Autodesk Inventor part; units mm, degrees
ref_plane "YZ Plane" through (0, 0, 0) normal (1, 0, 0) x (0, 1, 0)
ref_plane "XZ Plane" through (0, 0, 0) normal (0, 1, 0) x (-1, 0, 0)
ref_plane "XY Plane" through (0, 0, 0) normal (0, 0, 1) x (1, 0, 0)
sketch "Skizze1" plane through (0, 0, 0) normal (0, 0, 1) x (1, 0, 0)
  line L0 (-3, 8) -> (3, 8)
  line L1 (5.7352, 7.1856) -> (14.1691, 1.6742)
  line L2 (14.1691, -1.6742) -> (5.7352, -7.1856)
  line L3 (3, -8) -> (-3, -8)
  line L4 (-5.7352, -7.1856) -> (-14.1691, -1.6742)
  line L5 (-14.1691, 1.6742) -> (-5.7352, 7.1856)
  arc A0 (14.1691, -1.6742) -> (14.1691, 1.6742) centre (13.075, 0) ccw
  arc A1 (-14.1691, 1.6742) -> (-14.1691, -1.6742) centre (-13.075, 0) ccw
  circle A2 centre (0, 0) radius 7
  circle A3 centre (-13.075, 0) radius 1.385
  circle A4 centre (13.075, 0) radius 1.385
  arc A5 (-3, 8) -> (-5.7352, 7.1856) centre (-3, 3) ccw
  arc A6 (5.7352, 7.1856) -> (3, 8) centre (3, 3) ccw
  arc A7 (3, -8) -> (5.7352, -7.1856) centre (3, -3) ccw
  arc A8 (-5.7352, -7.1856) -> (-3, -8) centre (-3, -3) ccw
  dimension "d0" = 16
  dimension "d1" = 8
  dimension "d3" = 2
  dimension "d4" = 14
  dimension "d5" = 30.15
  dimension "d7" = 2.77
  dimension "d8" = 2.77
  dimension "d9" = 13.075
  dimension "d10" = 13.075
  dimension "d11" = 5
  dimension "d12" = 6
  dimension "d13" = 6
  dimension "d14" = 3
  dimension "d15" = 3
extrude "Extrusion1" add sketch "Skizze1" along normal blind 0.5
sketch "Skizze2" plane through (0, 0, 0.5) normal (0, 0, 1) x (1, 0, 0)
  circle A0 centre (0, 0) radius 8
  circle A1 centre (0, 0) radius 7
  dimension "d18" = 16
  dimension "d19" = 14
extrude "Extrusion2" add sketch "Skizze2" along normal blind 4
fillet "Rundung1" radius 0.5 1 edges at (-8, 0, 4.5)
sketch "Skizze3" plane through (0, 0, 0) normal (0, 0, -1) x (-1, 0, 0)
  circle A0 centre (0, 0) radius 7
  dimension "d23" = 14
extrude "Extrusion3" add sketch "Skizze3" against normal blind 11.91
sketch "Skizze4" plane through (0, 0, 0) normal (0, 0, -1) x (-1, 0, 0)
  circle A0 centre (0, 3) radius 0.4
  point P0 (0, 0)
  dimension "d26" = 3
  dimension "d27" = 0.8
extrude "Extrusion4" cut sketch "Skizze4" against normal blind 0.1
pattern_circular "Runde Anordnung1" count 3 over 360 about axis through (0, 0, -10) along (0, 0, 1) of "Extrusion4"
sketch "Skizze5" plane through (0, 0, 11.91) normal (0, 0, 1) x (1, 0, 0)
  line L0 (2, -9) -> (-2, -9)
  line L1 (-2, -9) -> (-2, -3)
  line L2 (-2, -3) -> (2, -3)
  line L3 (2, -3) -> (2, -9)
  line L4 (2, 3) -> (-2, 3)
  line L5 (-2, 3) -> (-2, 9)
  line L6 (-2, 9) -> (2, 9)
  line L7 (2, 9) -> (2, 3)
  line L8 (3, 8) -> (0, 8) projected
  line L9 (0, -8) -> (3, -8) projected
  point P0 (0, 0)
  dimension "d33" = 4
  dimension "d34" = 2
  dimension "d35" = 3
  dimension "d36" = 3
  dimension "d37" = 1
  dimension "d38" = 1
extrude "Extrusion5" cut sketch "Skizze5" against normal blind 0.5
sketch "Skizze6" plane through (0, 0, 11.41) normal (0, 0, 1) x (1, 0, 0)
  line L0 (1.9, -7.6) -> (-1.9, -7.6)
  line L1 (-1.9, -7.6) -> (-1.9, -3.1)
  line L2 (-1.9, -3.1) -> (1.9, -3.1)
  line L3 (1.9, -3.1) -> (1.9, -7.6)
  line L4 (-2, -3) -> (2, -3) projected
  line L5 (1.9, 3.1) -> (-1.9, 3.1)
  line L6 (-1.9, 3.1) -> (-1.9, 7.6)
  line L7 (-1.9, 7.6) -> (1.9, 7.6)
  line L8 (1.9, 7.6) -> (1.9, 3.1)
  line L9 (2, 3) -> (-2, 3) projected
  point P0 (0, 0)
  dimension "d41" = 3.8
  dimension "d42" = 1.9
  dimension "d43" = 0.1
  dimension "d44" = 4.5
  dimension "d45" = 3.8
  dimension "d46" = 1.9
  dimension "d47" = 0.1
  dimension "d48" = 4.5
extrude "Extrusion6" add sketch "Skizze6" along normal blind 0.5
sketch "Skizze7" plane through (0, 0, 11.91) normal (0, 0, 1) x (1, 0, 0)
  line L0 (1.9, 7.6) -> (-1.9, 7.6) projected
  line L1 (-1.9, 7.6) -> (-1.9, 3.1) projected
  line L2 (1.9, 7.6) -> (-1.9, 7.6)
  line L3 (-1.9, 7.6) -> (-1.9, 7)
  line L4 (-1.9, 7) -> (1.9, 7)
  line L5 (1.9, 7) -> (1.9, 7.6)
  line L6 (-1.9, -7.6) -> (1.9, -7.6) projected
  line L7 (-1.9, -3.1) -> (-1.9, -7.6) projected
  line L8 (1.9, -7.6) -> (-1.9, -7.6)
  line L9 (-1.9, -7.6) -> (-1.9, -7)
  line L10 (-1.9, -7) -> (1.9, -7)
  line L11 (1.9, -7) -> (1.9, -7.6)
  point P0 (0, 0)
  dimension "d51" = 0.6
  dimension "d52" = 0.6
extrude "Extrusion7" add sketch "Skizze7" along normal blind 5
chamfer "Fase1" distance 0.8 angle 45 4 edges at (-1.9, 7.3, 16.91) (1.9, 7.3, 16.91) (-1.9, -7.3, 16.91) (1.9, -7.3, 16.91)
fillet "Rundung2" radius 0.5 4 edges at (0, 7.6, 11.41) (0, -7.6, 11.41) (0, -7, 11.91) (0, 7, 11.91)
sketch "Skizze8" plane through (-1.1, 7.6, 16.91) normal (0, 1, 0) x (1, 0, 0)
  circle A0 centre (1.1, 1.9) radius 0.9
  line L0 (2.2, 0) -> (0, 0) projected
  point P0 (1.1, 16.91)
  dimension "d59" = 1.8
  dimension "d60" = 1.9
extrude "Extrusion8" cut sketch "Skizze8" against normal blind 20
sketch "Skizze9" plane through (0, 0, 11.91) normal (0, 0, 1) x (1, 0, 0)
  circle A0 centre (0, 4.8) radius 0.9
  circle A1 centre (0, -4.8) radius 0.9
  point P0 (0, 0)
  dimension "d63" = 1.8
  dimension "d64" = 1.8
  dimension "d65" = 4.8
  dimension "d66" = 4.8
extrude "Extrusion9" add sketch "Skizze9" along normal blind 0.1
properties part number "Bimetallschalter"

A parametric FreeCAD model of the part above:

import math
import FreeCAD as App
import Part
import Sketcher

V = App.Vector
Q = App.Units.Quantity


def edges_at(feature, points):
    """Names of the edges that pass closest to the given points."""
    edges = feature.Shape.Edges
    near = lambda p: min(range(len(edges)), key=lambda i: edges[i].distToShape(Part.Vertex(*p))[0])
    return sorted({f"Edge{near(p) + 1}" for p in points})

doc = App.newDocument("Part")
params = doc.addObject("Spreadsheet::Sheet", "Params")
for row, (alias, value) in enumerate([
    ("sketch1_diameter", "14 mm"),
    ("sketch1_radius", "5 mm"),
    ("sketch1_radius2", "2 mm"),
    ("sketch1_diameter2", "2.77 mm"),
    ("sketch1_width", "6 mm"),
    ("pad1_length", "0.5 mm"),
    ("sketch2_diameter", "16 mm"),
    ("sketch2_diameter2", "14 mm"),
    ("pad2_length", "4 mm"),
    ("fillet_radius", "0.5 mm"),
    ("sketch3_diameter", "14 mm"),
    ("pad3_length", "11.91 mm"),
    ("sketch4_diameter", "0.8 mm"),
    ("pocket1_length", "0.1 mm"),
    ("sketch5_width", "4 mm"),
    ("sketch5_height", "6 mm"),
    ("pocket2_length", "0.5 mm"),
    ("sketch6_width", "3.8 mm"),
    ("sketch6_height", "4.5 mm"),
    ("pad4_length", "0.5 mm"),
    ("sketch7_height", "0.6 mm"),
    ("sketch7_width", "3.8 mm"),
    ("pad5_length", "5 mm"),
    ("chamfer_size", "0.8 mm"),
    ("fillet2_radius", "0.5 mm"),
    ("sketch8_diameter", "1.8 mm"),
    ("pocket3_length", "20 mm"),
    ("sketch9_diameter", "1.8 mm"),
    ("pad6_length", "0.1 mm"),
], start=1):
    params.set(f"A{row}", alias)
    params.set(f"B{row}", "=" + value)
    params.setAlias(f"B{row}", alias)

body = doc.addObject("PartDesign::Body", "Body")

sketch1 = body.newObject("Sketcher::SketchObject", "Sketch")
sketch1.AttachmentSupport = (doc.getObject("XY_Plane"), [""])
sketch1.MapMode = "FlatFace"
sketch1.addGeometry(Part.LineSegment(V(3, 8, 0), V(-3, 8, 0)), False)
sketch1.addGeometry(Part.ArcOfCircle(Part.Circle(V(-3, 3, 0), V(0, 0, 1), 5), math.radians(90), math.radians(123.163756)), False)
sketch1.addGeometry(Part.LineSegment(V(-5.7352, 7.1856, 0), V(-14.1691, 1.6742, 0)), False)
sketch1.addGeometry(Part.ArcOfCircle(Part.Circle(V(-13.075, 0, 0), V(0, 0, 1), 2), math.radians(123.164863), math.radians(236.835137)), False)
sketch1.addGeometry(Part.LineSegment(V(-14.1691, -1.6742, 0), V(-5.7352, -7.1856, 0)), False)
sketch1.addGeometry(Part.ArcOfCircle(Part.Circle(V(-3, -3, 0), V(0, 0, 1), 5.000057), math.radians(-123.163756), math.radians(-90)), False)
sketch1.addGeometry(Part.LineSegment(V(-3, -8, 0), V(3, -8, 0)), False)
sketch1.addGeometry(Part.ArcOfCircle(Part.Circle(V(3, -3, 0), V(0, 0, 1), 5), math.radians(-90), math.radians(-56.836244)), False)
sketch1.addGeometry(Part.LineSegment(V(5.7352, -7.1856, 0), V(14.1691, -1.6742, 0)), False)
sketch1.addGeometry(Part.ArcOfCircle(Part.Circle(V(13.075, 0, 0), V(0, 0, 1), 2), math.radians(-56.835137), math.radians(56.835137)), False)
sketch1.addGeometry(Part.LineSegment(V(14.1691, 1.6742, 0), V(5.7352, 7.1856, 0)), False)
sketch1.addGeometry(Part.ArcOfCircle(Part.Circle(V(3, 3, 0), V(0, 0, 1), 5.000057), math.radians(56.836244), math.radians(90)), False)
sketch1.addGeometry(Part.Circle(V(-13.075, 0, 0), V(0, 0, 1), 1.385), False)
sketch1.addGeometry(Part.Circle(V(0, 0, 0), V(0, 0, 1), 7), False)
sketch1.addGeometry(Part.Circle(V(13.075, 0, 0), V(0, 0, 1), 1.385), False)
sketch1.addConstraint(Sketcher.Constraint("Tangent", 0, 2, 1, 1))
sketch1.addConstraint(Sketcher.Constraint("Tangent", 1, 2, 2, 1))
sketch1.addConstraint(Sketcher.Constraint("Tangent", 2, 2, 3, 1))
sketch1.addConstraint(Sketcher.Constraint("Tangent", 3, 2, 4, 1))
sketch1.addConstraint(Sketcher.Constraint("Tangent", 4, 2, 5, 1))
sketch1.addConstraint(Sketcher.Constraint("Tangent", 5, 2, 6, 1))
sketch1.addConstraint(Sketcher.Constraint("Tangent", 6, 2, 7, 1))
sketch1.addConstraint(Sketcher.Constraint("Tangent", 7, 2, 8, 1))
sketch1.addConstraint(Sketcher.Constraint("Tangent", 8, 2, 9, 1))
sketch1.addConstraint(Sketcher.Constraint("Tangent", 9, 2, 10, 1))
sketch1.addConstraint(Sketcher.Constraint("Tangent", 10, 2, 11, 1))
sketch1.addConstraint(Sketcher.Constraint("Tangent", 11, 2, 0, 1))
sketch1.addConstraint(Sketcher.Constraint("Horizontal", 0))
sketch1.addConstraint(Sketcher.Constraint("Horizontal", 6))
sketch1.addConstraint(Sketcher.Constraint("Coincident", 13, 3, -1, 1))
sketch1.addConstraint(Sketcher.Constraint("Coincident", 12, 3, 3, 3))
sketch1.addConstraint(Sketcher.Constraint("Coincident", 14, 3, 9, 3))
sketch1.addConstraint(Sketcher.Constraint("Equal", 1, 5))
sketch1.addConstraint(Sketcher.Constraint("Equal", 5, 7))
sketch1.addConstraint(Sketcher.Constraint("Equal", 3, 9))
sketch1.addConstraint(Sketcher.Constraint("Equal", 7, 11))
sketch1.addConstraint(Sketcher.Constraint("Equal", 12, 14))
sketch1.addConstraint(Sketcher.Constraint("Symmetric", 1, 3, 7, 3, -1, 1))
sketch1.addConstraint(Sketcher.Constraint("Symmetric", 3, 3, 9, 3, -1, 1))
sketch1.addConstraint(Sketcher.Constraint("Symmetric", 4, 2, 7, 2, -2))
sketch1.addConstraint(Sketcher.Constraint("Parallel", 4, 10))
sketch1.addConstraint(Sketcher.Constraint("Diameter", 13, Q("14 mm")))
sketch1.addConstraint(Sketcher.Constraint("Radius", 1, Q("5 mm")))
sketch1.addConstraint(Sketcher.Constraint("Radius", 3, Q("2 mm")))
sketch1.addConstraint(Sketcher.Constraint("Diameter", 12, Q("2.77 mm")))
sketch1.addConstraint(Sketcher.Constraint("DistanceX", 0, 2, 0, 1, Q("6 mm")))
sketch1.addConstraint(Sketcher.Constraint("DistanceY", -1, 1, 1, 3, Q("3 mm")))
sketch1.addConstraint(Sketcher.Constraint("DistanceX", 3, 3, -1, 1, Q("13.075 mm")))
sketch1.setExpression("Constraints[26]", "Params.sketch1_diameter")
sketch1.setExpression("Constraints[27]", "Params.sketch1_radius")
sketch1.setExpression("Constraints[28]", "Params.sketch1_radius2")
sketch1.setExpression("Constraints[29]", "Params.sketch1_diameter2")
sketch1.setExpression("Constraints[30]", "Params.sketch1_width")
pad1 = body.newObject("PartDesign::Pad", "Pad")
pad1.Profile = sketch1
pad1.setExpression("Length", "Params.pad1_length")

sketch2 = body.newObject("Sketcher::SketchObject", "Sketch001")
sketch2.AttachmentSupport = (doc.getObject("XY_Plane"), [""])
sketch2.MapMode = "FlatFace"
sketch2.AttachmentOffset = App.Placement(V(0, 0, 0.5), App.Rotation())
sketch2.addGeometry(Part.Circle(V(0, 0, 0), V(0, 0, 1), 8), False)
sketch2.addGeometry(Part.Circle(V(0, 0, 0), V(0, 0, 1), 7), False)
sketch2.addConstraint(Sketcher.Constraint("Coincident", 0, 3, -1, 1))
sketch2.addConstraint(Sketcher.Constraint("Coincident", 1, 3, -1, 1))
sketch2.addConstraint(Sketcher.Constraint("Diameter", 0, Q("16 mm")))
sketch2.addConstraint(Sketcher.Constraint("Diameter", 1, Q("14 mm")))
sketch2.setExpression("Constraints[2]", "Params.sketch2_diameter")
sketch2.setExpression("Constraints[3]", "Params.sketch2_diameter2")
pad2 = body.newObject("PartDesign::Pad", "Pad001")
pad2.Profile = sketch2
pad2.setExpression("Length", "Params.pad2_length")
doc.recompute()

fillet = body.newObject("PartDesign::Fillet", "Fillet")
fillet.Base = (pad2, edges_at(pad2, [(-8, 0, 4.5)]))
fillet.setExpression("Radius", "Params.fillet_radius")

sketch3 = body.newObject("Sketcher::SketchObject", "Sketch002")
sketch3.AttachmentSupport = (doc.getObject("XY_Plane"), [""])
sketch3.MapMode = "FlatFace"
sketch3.addGeometry(Part.Circle(V(0, 0, 0), V(0, 0, 1), 7), False)
sketch3.addConstraint(Sketcher.Constraint("Coincident", 0, 3, -1, 1))
sketch3.addConstraint(Sketcher.Constraint("Diameter", 0, Q("14 mm")))
sketch3.setExpression("Constraints[1]", "Params.sketch3_diameter")
pad3 = body.newObject("PartDesign::Pad", "Pad002")
pad3.Profile = sketch3
pad3.setExpression("Length", "Params.pad3_length")

sketch4 = body.newObject("Sketcher::SketchObject", "Sketch003")
sketch4.AttachmentSupport = (doc.getObject("XY_Plane"), [""])
sketch4.MapMode = "FlatFace"
sketch4.addGeometry(Part.Circle(V(0, 3, 0), V(0, 0, 1), 0.4), False)
sketch4.addConstraint(Sketcher.Constraint("PointOnObject", 0, 3, -2))
sketch4.addConstraint(Sketcher.Constraint("Diameter", 0, Q("0.8 mm")))
sketch4.addConstraint(Sketcher.Constraint("DistanceY", -1, 1, 0, 3, Q("3 mm")))
sketch4.setExpression("Constraints[1]", "Params.sketch4_diameter")
pocket1 = body.newObject("PartDesign::Pocket", "Pocket")
pocket1.Profile = sketch4
pocket1.setExpression("Length", "Params.pocket1_length")
pocket1.Reversed = True
doc.recompute()

polarpattern = body.newObject("PartDesign::PolarPattern", "PolarPattern")
polarpattern.Originals = [pocket1]
polarpattern.Axis = (doc.getObject("Z_Axis"), [""])
polarpattern.Angle = 360
polarpattern.Occurrences = 3
body.Tip = polarpattern

sketch5 = body.newObject("Sketcher::SketchObject", "Sketch004")
sketch5.AttachmentSupport = (doc.getObject("XY_Plane"), [""])
sketch5.MapMode = "FlatFace"
sketch5.AttachmentOffset = App.Placement(V(0, 0, 11.91), App.Rotation())
sketch5.addGeometry(Part.LineSegment(V(-2, -9, 0), V(2, -9, 0)), False)
sketch5.addGeometry(Part.LineSegment(V(2, -9, 0), V(2, -3, 0)), False)
sketch5.addGeometry(Part.LineSegment(V(2, -3, 0), V(-2, -3, 0)), False)
sketch5.addGeometry(Part.LineSegment(V(-2, -3, 0), V(-2, -9, 0)), False)
sketch5.addGeometry(Part.LineSegment(V(-2, 3, 0), V(2, 3, 0)), False)
sketch5.addGeometry(Part.LineSegment(V(2, 3, 0), V(2, 9, 0)), False)
sketch5.addGeometry(Part.LineSegment(V(2, 9, 0), V(-2, 9, 0)), False)
sketch5.addGeometry(Part.LineSegment(V(-2, 9, 0), V(-2, 3, 0)), False)
sketch5.addConstraint(Sketcher.Constraint("Coincident", 0, 2, 1, 1))
sketch5.addConstraint(Sketcher.Constraint("Coincident", 1, 2, 2, 1))
sketch5.addConstraint(Sketcher.Constraint("Coincident", 2, 2, 3, 1))
sketch5.addConstraint(Sketcher.Constraint("Coincident", 3, 2, 0, 1))
sketch5.addConstraint(Sketcher.Constraint("Coincident", 4, 2, 5, 1))
sketch5.addConstraint(Sketcher.Constraint("Coincident", 5, 2, 6, 1))
sketch5.addConstraint(Sketcher.Constraint("Coincident", 6, 2, 7, 1))
sketch5.addConstraint(Sketcher.Constraint("Coincident", 7, 2, 4, 1))
sketch5.addConstraint(Sketcher.Constraint("Horizontal", 0))
sketch5.addConstraint(Sketcher.Constraint("Vertical", 1))
sketch5.addConstraint(Sketcher.Constraint("Horizontal", 2))
sketch5.addConstraint(Sketcher.Constraint("Vertical", 3))
sketch5.addConstraint(Sketcher.Constraint("Horizontal", 4))
sketch5.addConstraint(Sketcher.Constraint("Vertical", 5))
sketch5.addConstraint(Sketcher.Constraint("Horizontal", 6))
sketch5.addConstraint(Sketcher.Constraint("Vertical", 7))
sketch5.addConstraint(Sketcher.Constraint("Symmetric", 2, 2, 4, 2, -1, 1))
sketch5.addConstraint(Sketcher.Constraint("Symmetric", 0, 2, 6, 2, -1, 1))
sketch5.addConstraint(Sketcher.Constraint("Vertical", 1, 2, 4, 2))
sketch5.addConstraint(Sketcher.Constraint("DistanceX", 0, 1, 0, 2, Q("4 mm")))
sketch5.addConstraint(Sketcher.Constraint("DistanceY", 1, 2, -1, 1, Q("3 mm")))
sketch5.addConstraint(Sketcher.Constraint("DistanceY", 1, 1, 1, 2, Q("6 mm")))
sketch5.setExpression("Constraints[19]", "Params.sketch5_width")
sketch5.setExpression("Constraints[21]", "Params.sketch5_height")
pocket2 = body.newObject("PartDesign::Pocket", "Pocket001")
pocket2.Profile = sketch5
pocket2.setExpression("Length", "Params.pocket2_length")

sketch6 = body.newObject("Sketcher::SketchObject", "Sketch005")
sketch6.AttachmentSupport = (doc.getObject("XY_Plane"), [""])
sketch6.MapMode = "FlatFace"
sketch6.AttachmentOffset = App.Placement(V(0, 0, 11.41), App.Rotation())
sketch6.addGeometry(Part.LineSegment(V(-1.9, -7.6, 0), V(1.9, -7.6, 0)), False)
sketch6.addGeometry(Part.LineSegment(V(1.9, -7.6, 0), V(1.9, -3.1, 0)), False)
sketch6.addGeometry(Part.LineSegment(V(1.9, -3.1, 0), V(-1.9, -3.1, 0)), False)
sketch6.addGeometry(Part.LineSegment(V(-1.9, -3.1, 0), V(-1.9, -7.6, 0)), False)
sketch6.addGeometry(Part.LineSegment(V(-1.9, 3.1, 0), V(1.9, 3.1, 0)), False)
sketch6.addGeometry(Part.LineSegment(V(1.9, 3.1, 0), V(1.9, 7.6, 0)), False)
sketch6.addGeometry(Part.LineSegment(V(1.9, 7.6, 0), V(-1.9, 7.6, 0)), False)
sketch6.addGeometry(Part.LineSegment(V(-1.9, 7.6, 0), V(-1.9, 3.1, 0)), False)
sketch6.addConstraint(Sketcher.Constraint("Coincident", 0, 2, 1, 1))
sketch6.addConstraint(Sketcher.Constraint("Coincident", 1, 2, 2, 1))
sketch6.addConstraint(Sketcher.Constraint("Coincident", 2, 2, 3, 1))
sketch6.addConstraint(Sketcher.Constraint("Coincident", 3, 2, 0, 1))
sketch6.addConstraint(Sketcher.Constraint("Coincident", 4, 2, 5, 1))
sketch6.addConstraint(Sketcher.Constraint("Coincident", 5, 2, 6, 1))
sketch6.addConstraint(Sketcher.Constraint("Coincident", 6, 2, 7, 1))
sketch6.addConstraint(Sketcher.Constraint("Coincident", 7, 2, 4, 1))
sketch6.addConstraint(Sketcher.Constraint("Horizontal", 0))
sketch6.addConstraint(Sketcher.Constraint("Vertical", 1))
sketch6.addConstraint(Sketcher.Constraint("Horizontal", 2))
sketch6.addConstraint(Sketcher.Constraint("Vertical", 3))
sketch6.addConstraint(Sketcher.Constraint("Horizontal", 4))
sketch6.addConstraint(Sketcher.Constraint("Vertical", 5))
sketch6.addConstraint(Sketcher.Constraint("Horizontal", 6))
sketch6.addConstraint(Sketcher.Constraint("Vertical", 7))
sketch6.addConstraint(Sketcher.Constraint("Symmetric", 2, 2, 4, 2, -1, 1))
sketch6.addConstraint(Sketcher.Constraint("Symmetric", 0, 2, 6, 2, -1, 1))
sketch6.addConstraint(Sketcher.Constraint("Vertical", 1, 2, 4, 2))
sketch6.addConstraint(Sketcher.Constraint("DistanceX", 0, 1, 0, 2, Q("3.8 mm")))
sketch6.addConstraint(Sketcher.Constraint("DistanceY", 1, 1, 1, 2, Q("4.5 mm")))
sketch6.addConstraint(Sketcher.Constraint("DistanceY", 0, 2, -1, 1, Q("7.6 mm")))
sketch6.setExpression("Constraints[19]", "Params.sketch6_width")
sketch6.setExpression("Constraints[20]", "Params.sketch6_height")
pad4 = body.newObject("PartDesign::Pad", "Pad003")
pad4.Profile = sketch6
pad4.setExpression("Length", "Params.pad4_length")

sketch7 = body.newObject("Sketcher::SketchObject", "Sketch006")
sketch7.AttachmentSupport = (doc.getObject("XY_Plane"), [""])
sketch7.MapMode = "FlatFace"
sketch7.AttachmentOffset = App.Placement(V(0, 0, 11.91), App.Rotation())
sketch7.addGeometry(Part.LineSegment(V(1.9, 7, 0), V(1.9, 7.6, 0)), False)
sketch7.addGeometry(Part.LineSegment(V(1.9, 7.6, 0), V(-1.9, 7.6, 0)), False)
sketch7.addGeometry(Part.LineSegment(V(-1.9, 7.6, 0), V(-1.9, 7, 0)), False)
sketch7.addGeometry(Part.LineSegment(V(-1.9, 7, 0), V(1.9, 7, 0)), False)
sketch7.addGeometry(Part.LineSegment(V(-1.9, -7, 0), V(-1.9, -7.6, 0)), False)
sketch7.addGeometry(Part.LineSegment(V(-1.9, -7.6, 0), V(1.9, -7.6, 0)), False)
sketch7.addGeometry(Part.LineSegment(V(1.9, -7.6, 0), V(1.9, -7, 0)), False)
sketch7.addGeometry(Part.LineSegment(V(1.9, -7, 0), V(-1.9, -7, 0)), False)
sketch7.addConstraint(Sketcher.Constraint("Coincident", 0, 2, 1, 1))
sketch7.addConstraint(Sketcher.Constraint("Coincident", 1, 2, 2, 1))
sketch7.addConstraint(Sketcher.Constraint("Coincident", 2, 2, 3, 1))
sketch7.addConstraint(Sketcher.Constraint("Coincident", 3, 2, 0, 1))
sketch7.addConstraint(Sketcher.Constraint("Coincident", 4, 2, 5, 1))
sketch7.addConstraint(Sketcher.Constraint("Coincident", 5, 2, 6, 1))
sketch7.addConstraint(Sketcher.Constraint("Coincident", 6, 2, 7, 1))
sketch7.addConstraint(Sketcher.Constraint("Coincident", 7, 2, 4, 1))
sketch7.addConstraint(Sketcher.Constraint("Vertical", 0))
sketch7.addConstraint(Sketcher.Constraint("Horizontal", 1))
sketch7.addConstraint(Sketcher.Constraint("Vertical", 2))
sketch7.addConstraint(Sketcher.Constraint("Horizontal", 3))
sketch7.addConstraint(Sketcher.Constraint("Vertical", 4))
sketch7.addConstraint(Sketcher.Constraint("Horizontal", 5))
sketch7.addConstraint(Sketcher.Constraint("Vertical", 6))
sketch7.addConstraint(Sketcher.Constraint("Horizontal", 7))
sketch7.addConstraint(Sketcher.Constraint("Symmetric", 0, 2, 4, 2, -1, 1))
sketch7.addConstraint(Sketcher.Constraint("Symmetric", 2, 2, 6, 2, -1, 1))
sketch7.addConstraint(Sketcher.Constraint("Vertical", 2, 2, 4, 2))
sketch7.addConstraint(Sketcher.Constraint("DistanceY", 0, 1, 0, 2, Q("0.6 mm")))
sketch7.addConstraint(Sketcher.Constraint("DistanceX", 1, 2, 1, 1, Q("3.8 mm")))
sketch7.addConstraint(Sketcher.Constraint("DistanceY", -1, 1, 2, 2, Q("7 mm")))
sketch7.setExpression("Constraints[19]", "Params.sketch7_height")
sketch7.setExpression("Constraints[20]", "Params.sketch7_width")
pad5 = body.newObject("PartDesign::Pad", "Pad004")
pad5.Profile = sketch7
pad5.setExpression("Length", "Params.pad5_length")
doc.recompute()

chamfer = body.newObject("PartDesign::Chamfer", "Chamfer")
chamfer.Base = (pad5, edges_at(pad5, [
    (-1.9, 7.3, 16.91),
    (1.9, 7.3, 16.91),
    (-1.9, -7.3, 16.91),
    (1.9, -7.3, 16.91),
]))
chamfer.setExpression("Size", "Params.chamfer_size")
doc.recompute()

fillet2 = body.newObject("PartDesign::Fillet", "Fillet001")
fillet2.Base = (chamfer, edges_at(chamfer, [
    (0, 7.6, 11.41),
    (0, -7.6, 11.41),
    (0, -7, 11.91),
    (0, 7, 11.91),
]))
fillet2.setExpression("Radius", "Params.fillet2_radius")

sketch8 = body.newObject("Sketcher::SketchObject", "Sketch007")
sketch8.AttachmentSupport = (doc.getObject("XZ_Plane"), [""])
sketch8.MapMode = "FlatFace"
sketch8.AttachmentOffset = App.Placement(V(0, 0, -7.6), App.Rotation())
sketch8.addGeometry(Part.Circle(V(0, 15.01, 0), V(0, 0, 1), 0.9), False)
sketch8.addConstraint(Sketcher.Constraint("PointOnObject", 0, 3, -2))
sketch8.addConstraint(Sketcher.Constraint("Diameter", 0, Q("1.8 mm")))
sketch8.addConstraint(Sketcher.Constraint("DistanceY", -1, 1, 0, 3, Q("15.01 mm")))
sketch8.setExpression("Constraints[1]", "Params.sketch8_diameter")
pocket3 = body.newObject("PartDesign::Pocket", "Pocket002")
pocket3.Profile = sketch8
pocket3.setExpression("Length", "Params.pocket3_length")
pocket3.Reversed = True

sketch9 = body.newObject("Sketcher::SketchObject", "Sketch008")
sketch9.AttachmentSupport = (doc.getObject("XY_Plane"), [""])
sketch9.MapMode = "FlatFace"
sketch9.AttachmentOffset = App.Placement(V(0, 0, 11.91), App.Rotation())
sketch9.addGeometry(Part.Circle(V(0, 4.8, 0), V(0, 0, 1), 0.9), False)
sketch9.addGeometry(Part.Circle(V(0, -4.8, 0), V(0, 0, 1), 0.9), False)
sketch9.addConstraint(Sketcher.Constraint("Equal", 0, 1))
sketch9.addConstraint(Sketcher.Constraint("Symmetric", 0, 3, 1, 3, -1, 1))
sketch9.addConstraint(Sketcher.Constraint("PointOnObject", 0, 3, -2))
sketch9.addConstraint(Sketcher.Constraint("Diameter", 0, Q("1.8 mm")))
sketch9.addConstraint(Sketcher.Constraint("DistanceY", -1, 1, 0, 3, Q("4.8 mm")))
sketch9.setExpression("Constraints[3]", "Params.sketch9_diameter")
pad6 = body.newObject("PartDesign::Pad", "Pad005")
pad6.Profile = sketch9
pad6.setExpression("Length", "Params.pad6_length")

doc.recompute()
